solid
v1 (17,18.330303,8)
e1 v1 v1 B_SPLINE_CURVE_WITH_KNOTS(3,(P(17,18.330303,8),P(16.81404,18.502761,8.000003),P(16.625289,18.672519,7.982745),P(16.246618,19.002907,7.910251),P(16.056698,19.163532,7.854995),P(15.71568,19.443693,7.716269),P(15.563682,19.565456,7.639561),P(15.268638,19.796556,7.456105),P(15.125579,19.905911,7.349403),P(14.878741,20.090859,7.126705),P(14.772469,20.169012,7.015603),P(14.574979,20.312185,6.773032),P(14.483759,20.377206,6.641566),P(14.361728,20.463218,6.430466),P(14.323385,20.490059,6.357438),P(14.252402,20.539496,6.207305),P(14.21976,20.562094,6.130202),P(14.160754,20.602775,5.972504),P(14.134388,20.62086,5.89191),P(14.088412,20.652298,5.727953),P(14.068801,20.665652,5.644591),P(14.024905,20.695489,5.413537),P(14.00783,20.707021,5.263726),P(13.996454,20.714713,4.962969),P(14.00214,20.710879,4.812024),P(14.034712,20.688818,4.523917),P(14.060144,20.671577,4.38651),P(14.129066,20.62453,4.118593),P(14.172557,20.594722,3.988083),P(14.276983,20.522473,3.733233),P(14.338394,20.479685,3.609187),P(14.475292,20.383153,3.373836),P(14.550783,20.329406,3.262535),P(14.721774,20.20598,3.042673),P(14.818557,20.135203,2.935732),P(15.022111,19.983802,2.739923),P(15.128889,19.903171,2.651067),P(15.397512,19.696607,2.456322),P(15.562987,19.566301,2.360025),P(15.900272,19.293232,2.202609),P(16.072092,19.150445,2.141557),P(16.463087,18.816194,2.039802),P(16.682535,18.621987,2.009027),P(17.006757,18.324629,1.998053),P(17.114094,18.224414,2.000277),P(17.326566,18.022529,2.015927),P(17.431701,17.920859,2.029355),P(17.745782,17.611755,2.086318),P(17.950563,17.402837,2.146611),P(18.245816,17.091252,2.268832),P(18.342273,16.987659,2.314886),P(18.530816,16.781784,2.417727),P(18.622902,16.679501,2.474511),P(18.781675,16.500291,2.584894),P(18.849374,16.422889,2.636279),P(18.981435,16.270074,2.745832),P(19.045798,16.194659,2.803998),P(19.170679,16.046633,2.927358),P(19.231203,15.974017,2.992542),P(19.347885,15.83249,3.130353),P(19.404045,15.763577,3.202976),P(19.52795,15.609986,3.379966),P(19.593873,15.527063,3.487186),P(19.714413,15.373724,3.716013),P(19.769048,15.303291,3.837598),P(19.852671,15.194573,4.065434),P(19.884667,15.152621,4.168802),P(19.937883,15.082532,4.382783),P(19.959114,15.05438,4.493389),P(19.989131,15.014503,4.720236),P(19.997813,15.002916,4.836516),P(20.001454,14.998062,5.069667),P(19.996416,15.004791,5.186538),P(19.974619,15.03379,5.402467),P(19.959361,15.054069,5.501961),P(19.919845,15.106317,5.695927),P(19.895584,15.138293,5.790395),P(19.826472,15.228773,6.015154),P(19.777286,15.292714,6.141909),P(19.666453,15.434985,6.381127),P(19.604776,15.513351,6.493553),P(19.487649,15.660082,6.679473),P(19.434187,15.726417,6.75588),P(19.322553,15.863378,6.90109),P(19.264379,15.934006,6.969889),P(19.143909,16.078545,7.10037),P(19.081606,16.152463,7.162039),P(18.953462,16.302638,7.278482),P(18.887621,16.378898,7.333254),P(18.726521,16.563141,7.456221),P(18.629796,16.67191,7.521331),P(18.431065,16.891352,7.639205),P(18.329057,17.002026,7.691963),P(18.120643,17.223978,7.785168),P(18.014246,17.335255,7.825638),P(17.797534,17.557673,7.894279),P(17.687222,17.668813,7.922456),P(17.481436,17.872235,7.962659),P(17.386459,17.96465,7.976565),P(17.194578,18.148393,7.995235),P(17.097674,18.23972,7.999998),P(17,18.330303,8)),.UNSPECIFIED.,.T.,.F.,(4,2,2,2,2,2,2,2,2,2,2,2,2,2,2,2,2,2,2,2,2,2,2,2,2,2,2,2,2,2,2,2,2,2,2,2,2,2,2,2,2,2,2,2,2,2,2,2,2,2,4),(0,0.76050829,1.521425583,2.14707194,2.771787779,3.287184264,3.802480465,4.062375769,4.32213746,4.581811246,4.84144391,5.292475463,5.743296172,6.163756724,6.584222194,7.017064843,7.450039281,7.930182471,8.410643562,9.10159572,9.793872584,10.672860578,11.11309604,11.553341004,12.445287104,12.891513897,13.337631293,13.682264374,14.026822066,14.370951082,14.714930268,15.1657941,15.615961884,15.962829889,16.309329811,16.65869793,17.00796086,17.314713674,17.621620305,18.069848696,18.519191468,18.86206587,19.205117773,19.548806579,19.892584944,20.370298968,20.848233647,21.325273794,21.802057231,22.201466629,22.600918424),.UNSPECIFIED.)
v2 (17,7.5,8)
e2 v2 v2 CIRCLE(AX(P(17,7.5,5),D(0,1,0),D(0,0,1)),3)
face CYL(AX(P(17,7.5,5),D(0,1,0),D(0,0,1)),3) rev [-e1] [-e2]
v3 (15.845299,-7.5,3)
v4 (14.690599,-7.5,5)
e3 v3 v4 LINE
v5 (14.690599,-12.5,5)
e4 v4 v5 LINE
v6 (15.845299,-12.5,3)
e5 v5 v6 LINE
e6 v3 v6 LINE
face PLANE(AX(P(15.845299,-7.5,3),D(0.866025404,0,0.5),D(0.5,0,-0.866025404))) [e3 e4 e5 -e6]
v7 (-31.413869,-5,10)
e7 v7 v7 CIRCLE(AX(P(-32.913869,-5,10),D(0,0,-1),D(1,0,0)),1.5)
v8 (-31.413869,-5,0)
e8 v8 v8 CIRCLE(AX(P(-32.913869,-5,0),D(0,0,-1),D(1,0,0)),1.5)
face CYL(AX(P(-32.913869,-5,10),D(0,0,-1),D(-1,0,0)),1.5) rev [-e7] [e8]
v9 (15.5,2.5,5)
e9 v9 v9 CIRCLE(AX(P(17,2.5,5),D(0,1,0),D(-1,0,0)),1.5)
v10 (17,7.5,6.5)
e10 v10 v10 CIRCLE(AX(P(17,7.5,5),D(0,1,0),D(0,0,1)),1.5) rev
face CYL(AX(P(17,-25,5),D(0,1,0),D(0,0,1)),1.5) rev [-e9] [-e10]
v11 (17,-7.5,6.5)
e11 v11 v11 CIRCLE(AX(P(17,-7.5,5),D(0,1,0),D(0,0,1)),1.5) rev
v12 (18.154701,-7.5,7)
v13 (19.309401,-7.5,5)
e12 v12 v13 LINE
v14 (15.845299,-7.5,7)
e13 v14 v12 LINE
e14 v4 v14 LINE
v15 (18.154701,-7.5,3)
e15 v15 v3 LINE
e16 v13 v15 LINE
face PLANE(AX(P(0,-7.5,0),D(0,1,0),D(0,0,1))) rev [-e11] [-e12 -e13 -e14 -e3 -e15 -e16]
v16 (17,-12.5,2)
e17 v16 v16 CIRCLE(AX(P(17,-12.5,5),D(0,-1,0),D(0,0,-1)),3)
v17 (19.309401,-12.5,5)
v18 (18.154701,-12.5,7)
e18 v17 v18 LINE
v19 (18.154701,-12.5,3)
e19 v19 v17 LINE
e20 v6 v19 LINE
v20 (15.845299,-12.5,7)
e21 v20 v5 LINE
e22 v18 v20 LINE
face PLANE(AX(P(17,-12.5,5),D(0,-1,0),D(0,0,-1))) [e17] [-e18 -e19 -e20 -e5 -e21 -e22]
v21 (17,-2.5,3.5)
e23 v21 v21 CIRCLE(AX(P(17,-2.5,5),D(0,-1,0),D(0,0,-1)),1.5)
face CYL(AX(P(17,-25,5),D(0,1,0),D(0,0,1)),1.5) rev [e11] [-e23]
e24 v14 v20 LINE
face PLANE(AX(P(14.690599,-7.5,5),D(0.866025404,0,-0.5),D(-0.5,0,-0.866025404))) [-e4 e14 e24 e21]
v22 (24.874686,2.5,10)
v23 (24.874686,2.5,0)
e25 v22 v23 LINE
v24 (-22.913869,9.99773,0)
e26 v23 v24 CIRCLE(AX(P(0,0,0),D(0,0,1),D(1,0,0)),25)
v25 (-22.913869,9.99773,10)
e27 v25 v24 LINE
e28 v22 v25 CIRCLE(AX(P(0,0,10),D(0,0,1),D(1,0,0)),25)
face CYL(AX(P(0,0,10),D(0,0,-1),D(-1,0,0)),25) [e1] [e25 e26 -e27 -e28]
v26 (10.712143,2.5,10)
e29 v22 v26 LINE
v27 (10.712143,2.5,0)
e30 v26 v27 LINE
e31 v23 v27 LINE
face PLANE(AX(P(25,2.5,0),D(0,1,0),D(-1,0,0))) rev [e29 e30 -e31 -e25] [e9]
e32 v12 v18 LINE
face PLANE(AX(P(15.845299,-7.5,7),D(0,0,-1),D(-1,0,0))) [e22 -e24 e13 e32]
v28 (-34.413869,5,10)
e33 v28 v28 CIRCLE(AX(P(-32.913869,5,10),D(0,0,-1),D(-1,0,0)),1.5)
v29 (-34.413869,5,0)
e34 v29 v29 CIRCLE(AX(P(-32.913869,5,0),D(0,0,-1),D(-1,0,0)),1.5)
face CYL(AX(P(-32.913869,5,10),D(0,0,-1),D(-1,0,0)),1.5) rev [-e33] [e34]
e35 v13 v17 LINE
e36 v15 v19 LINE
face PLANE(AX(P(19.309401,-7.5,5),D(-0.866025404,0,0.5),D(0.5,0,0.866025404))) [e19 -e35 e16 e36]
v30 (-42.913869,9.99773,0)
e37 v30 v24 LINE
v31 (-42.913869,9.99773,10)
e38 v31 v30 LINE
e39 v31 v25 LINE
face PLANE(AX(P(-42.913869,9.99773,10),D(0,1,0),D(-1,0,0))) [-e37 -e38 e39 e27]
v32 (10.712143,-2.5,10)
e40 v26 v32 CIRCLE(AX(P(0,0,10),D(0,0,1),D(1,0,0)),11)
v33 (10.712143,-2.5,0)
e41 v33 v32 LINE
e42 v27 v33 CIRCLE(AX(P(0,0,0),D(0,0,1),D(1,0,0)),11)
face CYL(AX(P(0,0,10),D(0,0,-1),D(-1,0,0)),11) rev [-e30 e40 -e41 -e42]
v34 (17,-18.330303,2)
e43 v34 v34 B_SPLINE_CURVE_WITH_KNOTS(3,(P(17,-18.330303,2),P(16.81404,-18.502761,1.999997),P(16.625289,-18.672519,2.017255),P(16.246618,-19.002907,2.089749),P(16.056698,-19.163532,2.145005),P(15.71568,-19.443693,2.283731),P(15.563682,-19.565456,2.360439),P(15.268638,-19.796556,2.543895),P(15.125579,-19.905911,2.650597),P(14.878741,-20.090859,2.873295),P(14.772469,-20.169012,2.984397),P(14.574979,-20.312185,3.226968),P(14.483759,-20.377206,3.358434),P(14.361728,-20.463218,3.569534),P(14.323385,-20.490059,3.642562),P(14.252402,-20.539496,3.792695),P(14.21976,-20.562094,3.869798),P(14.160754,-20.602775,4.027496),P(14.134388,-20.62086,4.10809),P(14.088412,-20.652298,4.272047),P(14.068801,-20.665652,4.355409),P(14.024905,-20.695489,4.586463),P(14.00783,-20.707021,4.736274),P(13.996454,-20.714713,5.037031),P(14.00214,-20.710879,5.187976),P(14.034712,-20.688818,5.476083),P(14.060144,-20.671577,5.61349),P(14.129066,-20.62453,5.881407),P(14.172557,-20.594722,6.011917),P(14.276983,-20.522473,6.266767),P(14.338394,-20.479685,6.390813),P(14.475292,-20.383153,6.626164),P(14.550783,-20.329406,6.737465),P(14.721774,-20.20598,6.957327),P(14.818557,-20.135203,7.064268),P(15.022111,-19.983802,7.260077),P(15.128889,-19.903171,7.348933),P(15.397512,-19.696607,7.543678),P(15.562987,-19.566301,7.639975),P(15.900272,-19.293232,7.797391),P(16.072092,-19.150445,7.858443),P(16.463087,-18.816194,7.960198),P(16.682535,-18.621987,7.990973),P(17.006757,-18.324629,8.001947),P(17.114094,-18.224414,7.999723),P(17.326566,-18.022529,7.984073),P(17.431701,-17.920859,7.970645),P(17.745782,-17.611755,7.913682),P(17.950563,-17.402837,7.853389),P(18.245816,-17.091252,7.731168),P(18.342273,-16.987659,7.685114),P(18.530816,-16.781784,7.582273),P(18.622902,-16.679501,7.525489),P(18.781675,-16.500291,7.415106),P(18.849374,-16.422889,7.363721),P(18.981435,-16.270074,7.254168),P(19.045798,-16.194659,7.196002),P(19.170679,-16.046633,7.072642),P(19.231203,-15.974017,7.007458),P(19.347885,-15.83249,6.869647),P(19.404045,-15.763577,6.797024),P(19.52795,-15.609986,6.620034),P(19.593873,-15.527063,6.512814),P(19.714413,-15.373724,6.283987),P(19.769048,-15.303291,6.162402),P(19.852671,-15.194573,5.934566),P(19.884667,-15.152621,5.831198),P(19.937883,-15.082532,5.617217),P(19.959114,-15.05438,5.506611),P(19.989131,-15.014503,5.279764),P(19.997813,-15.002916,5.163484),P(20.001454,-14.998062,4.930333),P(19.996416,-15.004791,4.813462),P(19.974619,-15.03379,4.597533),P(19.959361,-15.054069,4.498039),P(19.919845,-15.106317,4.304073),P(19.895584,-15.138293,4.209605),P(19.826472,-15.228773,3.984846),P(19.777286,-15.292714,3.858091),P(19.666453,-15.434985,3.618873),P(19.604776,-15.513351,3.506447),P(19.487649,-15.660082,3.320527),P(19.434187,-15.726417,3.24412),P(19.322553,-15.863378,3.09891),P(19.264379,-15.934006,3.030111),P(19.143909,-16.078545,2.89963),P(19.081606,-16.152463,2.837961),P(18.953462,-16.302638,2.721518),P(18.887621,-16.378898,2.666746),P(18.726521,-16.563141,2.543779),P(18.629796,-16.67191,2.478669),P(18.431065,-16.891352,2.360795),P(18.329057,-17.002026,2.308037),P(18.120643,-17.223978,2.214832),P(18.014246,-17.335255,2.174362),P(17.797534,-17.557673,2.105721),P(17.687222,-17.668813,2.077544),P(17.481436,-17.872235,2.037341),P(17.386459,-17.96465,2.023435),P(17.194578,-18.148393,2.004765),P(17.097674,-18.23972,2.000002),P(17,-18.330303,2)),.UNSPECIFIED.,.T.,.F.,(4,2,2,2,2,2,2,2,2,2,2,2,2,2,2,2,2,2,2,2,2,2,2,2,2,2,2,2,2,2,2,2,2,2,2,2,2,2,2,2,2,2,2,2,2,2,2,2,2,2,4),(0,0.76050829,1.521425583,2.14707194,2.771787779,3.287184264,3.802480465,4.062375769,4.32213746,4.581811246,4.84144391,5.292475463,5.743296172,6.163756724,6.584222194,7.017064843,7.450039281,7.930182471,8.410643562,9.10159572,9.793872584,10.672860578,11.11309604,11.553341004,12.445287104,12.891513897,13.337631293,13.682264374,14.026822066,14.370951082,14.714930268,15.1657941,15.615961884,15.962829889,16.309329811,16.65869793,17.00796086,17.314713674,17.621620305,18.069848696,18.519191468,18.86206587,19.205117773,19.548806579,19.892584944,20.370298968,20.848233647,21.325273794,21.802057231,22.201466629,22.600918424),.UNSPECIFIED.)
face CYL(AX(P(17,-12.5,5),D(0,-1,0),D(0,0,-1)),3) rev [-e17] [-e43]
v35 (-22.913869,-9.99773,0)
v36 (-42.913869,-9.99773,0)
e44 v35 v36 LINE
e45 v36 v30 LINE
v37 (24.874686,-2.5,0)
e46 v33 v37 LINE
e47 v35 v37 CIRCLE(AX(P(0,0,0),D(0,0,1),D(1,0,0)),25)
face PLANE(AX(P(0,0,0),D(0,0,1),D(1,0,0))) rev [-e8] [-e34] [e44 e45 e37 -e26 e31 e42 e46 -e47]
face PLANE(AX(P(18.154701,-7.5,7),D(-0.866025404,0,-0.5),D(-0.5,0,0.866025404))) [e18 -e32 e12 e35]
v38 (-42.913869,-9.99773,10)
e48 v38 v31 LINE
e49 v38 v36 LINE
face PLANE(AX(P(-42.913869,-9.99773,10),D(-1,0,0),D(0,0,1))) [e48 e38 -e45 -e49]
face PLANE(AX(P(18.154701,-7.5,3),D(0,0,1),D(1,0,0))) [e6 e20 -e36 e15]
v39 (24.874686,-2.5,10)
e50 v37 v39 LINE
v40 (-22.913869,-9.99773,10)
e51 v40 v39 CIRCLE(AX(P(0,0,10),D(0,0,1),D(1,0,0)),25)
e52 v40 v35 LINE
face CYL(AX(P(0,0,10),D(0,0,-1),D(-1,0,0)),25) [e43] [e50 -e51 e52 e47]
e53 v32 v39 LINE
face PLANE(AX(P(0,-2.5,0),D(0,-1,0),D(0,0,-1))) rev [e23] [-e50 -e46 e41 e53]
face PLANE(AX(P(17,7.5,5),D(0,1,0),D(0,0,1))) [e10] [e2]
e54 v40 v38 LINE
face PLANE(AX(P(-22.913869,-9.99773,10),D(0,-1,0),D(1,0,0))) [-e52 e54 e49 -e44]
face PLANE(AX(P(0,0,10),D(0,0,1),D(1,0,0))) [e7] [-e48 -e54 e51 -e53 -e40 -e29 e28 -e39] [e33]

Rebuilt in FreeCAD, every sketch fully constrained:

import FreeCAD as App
import Part
import Sketcher
from FreeCAD import Vector
Q = App.Units.Quantity

doc = App.newDocument("Part")
body = doc.addObject("PartDesign::Body", "Body")

# Sketch on XY plane
sketch1 = body.newObject("Sketcher::SketchObject", "Sketch")
sketch1.AttachmentSupport = (doc.getObject("XY_Plane"), [""])
sketch1.MapMode = "FlatFace"
sketch1.addGeometry(Part.Circle(Vector(0, 0, 0), Vector(0, 0, 1), 25), False)
sketch1.addGeometry(Part.Circle(Vector(0, 0, 0), Vector(0, 0, 1), 11), False)
sketch1.addConstraint(Sketcher.Constraint("Coincident", 0, 3, -1, 1))
sketch1.addConstraint(Sketcher.Constraint("Coincident", 1, 3, -1, 1))
sketch1.addConstraint(Sketcher.Constraint("Diameter", 0, 50.0))
sketch1.addConstraint(Sketcher.Constraint("Diameter", 1, 22.0))
pad1 = body.newObject("PartDesign::Pad", "Pad")
pad1.Profile = sketch1
pad1.Length = 10

# Sketch on XY plane
sketch2 = body.newObject("Sketcher::SketchObject", "Sketch001")
sketch2.AttachmentSupport = (doc.getObject("XY_Plane"), [""])
sketch2.MapMode = "FlatFace"
sketch2.AttachmentOffset = App.Placement(Vector(0, 0, 10), App.Rotation())
sketch2.addGeometry(Part.LineSegment(Vector(25, 2, 0), Vector(0, 2, 0)), False)
sketch2.addGeometry(Part.LineSegment(Vector(0, 2, 0), Vector(0, -2, 0)), False)
sketch2.addGeometry(Part.LineSegment(Vector(0, -2, 0), Vector(25, -2, 0)), False)
sketch2.addGeometry(Part.LineSegment(Vector(25, -2, 0), Vector(25, 2, 0)), False)
sketch2.addConstraint(Sketcher.Constraint("Coincident", 0, 2, 1, 1))
sketch2.addConstraint(Sketcher.Constraint("Coincident", 1, 2, 2, 1))
sketch2.addConstraint(Sketcher.Constraint("Coincident", 2, 2, 3, 1))
sketch2.addConstraint(Sketcher.Constraint("Coincident", 3, 2, 0, 1))
sketch2.addConstraint(Sketcher.Constraint("Horizontal", 0))
sketch2.addConstraint(Sketcher.Constraint("Vertical", 1))
sketch2.addConstraint(Sketcher.Constraint("Horizontal", 2))
sketch2.addConstraint(Sketcher.Constraint("Vertical", 3))
sketch2.addConstraint(Sketcher.Constraint("Symmetric", 0, 2, 1, 2, -1, 1))
sketch2.addConstraint(Sketcher.Constraint("DistanceX", 0, 2, 0, 1, 25.0))
sketch2.addConstraint(Sketcher.Constraint("DistanceY", 1, 2, 1, 1, 5.0))
pocket1 = body.newObject("PartDesign::Pocket", "Pocket")
pocket1.Profile = sketch2
pocket1.Length = 10

# Sketch on XZ plane
sketch3 = body.newObject("Sketcher::SketchObject", "Sketch002")
sketch3.AttachmentSupport = (doc.getObject("XZ_Plane"), [""])
sketch3.MapMode = "FlatFace"
sketch3.AttachmentOffset = App.Placement(Vector(0, 0, 2.5), App.Rotation())
sketch3.addGeometry(Part.Circle(Vector(17, 5, 0), Vector(0, 0, 1), 1.5), False)
sketch3.addConstraint(Sketcher.Constraint("Diameter", 0, 3.0))
sketch3.addConstraint(Sketcher.Constraint("DistanceX", -1, 1, 0, 3, 17.0))
sketch3.addConstraint(Sketcher.Constraint("DistanceY", -1, 1, 0, 3, 5.0))
pocket2 = body.newObject("PartDesign::Pocket", "Pocket001")
pocket2.Profile = sketch3
pocket2.Type = "ThroughAll"
pocket2.Midplane = True

# Sketch on XZ plane
sketch4 = body.newObject("Sketcher::SketchObject", "Sketch003")
sketch4.AttachmentSupport = (doc.getObject("XZ_Plane"), [""])
sketch4.MapMode = "FlatFace"
sketch4.AttachmentOffset = App.Placement(Vector(0, 0, -27.5), App.Rotation())
sketch4.addGeometry(Part.Circle(Vector(17, 5, 0), Vector(0, 0, 1), 3), False)
sketch4.addConstraint(Sketcher.Constraint("Diameter", 0, 6.0))
sketch4.addConstraint(Sketcher.Constraint("DistanceX", -1, 1, 0, 3, 17.0))
sketch4.addConstraint(Sketcher.Constraint("DistanceY", -1, 1, 0, 3, 5.0))
pocket3 = body.newObject("PartDesign::Pocket", "Pocket002")
pocket3.Profile = sketch4
pocket3.Length = 20
pocket3.Reversed = True

# Sketch on XZ plane
sketch5 = body.newObject("Sketcher::SketchObject", "Sketch004")
sketch5.AttachmentSupport = (doc.getObject("XZ_Plane"), [""])
sketch5.MapMode = "FlatFace"
sketch5.AttachmentOffset = App.Placement(Vector(0, 0, 32.5), App.Rotation())
sketch5.addGeometry(Part.LineSegment(Vector(19.3, 5, 0), Vector(18.2, 3, 0)), False)
sketch5.addGeometry(Part.LineSegment(Vector(18.2, 3, 0), Vector(15.8, 3, 0)), False)
sketch5.addGeometry(Part.LineSegment(Vector(15.8, 3, 0), Vector(14.7, 5, 0)), False)
sketch5.addGeometry(Part.LineSegment(Vector(14.7, 5, 0), Vector(15.8, 7, 0)), False)
sketch5.addGeometry(Part.LineSegment(Vector(15.8, 7, 0), Vector(18.2, 7, 0)), False)
sketch5.addGeometry(Part.LineSegment(Vector(18.2, 7, 0), Vector(19.3, 5, 0)), False)
sketch5.addConstraint(Sketcher.Constraint("Coincident", 0, 2, 1, 1))
sketch5.addConstraint(Sketcher.Constraint("Coincident", 1, 2, 2, 1))
sketch5.addConstraint(Sketcher.Constraint("Coincident", 2, 2, 3, 1))
sketch5.addConstraint(Sketcher.Constraint("Coincident", 3, 2, 4, 1))
sketch5.addConstraint(Sketcher.Constraint("Coincident", 4, 2, 5, 1))
sketch5.addConstraint(Sketcher.Constraint("Coincident", 5, 2, 0, 1))
sketch5.addConstraint(Sketcher.Constraint("Horizontal", 1))
sketch5.addConstraint(Sketcher.Constraint("Horizontal", 4))
sketch5.addConstraint(Sketcher.Constraint("Parallel", 0, 3))
sketch5.addConstraint(Sketcher.Constraint("Parallel", 2, 5))
sketch5.addConstraint(Sketcher.Constraint("Horizontal", 2, 2, 5, 2))
sketch5.addConstraint(Sketcher.Constraint("Vertical", 1, 2, 3, 2))
sketch5.addConstraint(Sketcher.Constraint("Vertical", 0, 2, 4, 2))
sketch5.addConstraint(Sketcher.Constraint("Angle", 0, Q("-120 deg")))
sketch5.addConstraint(Sketcher.Constraint("DistanceY", -1, 1, 0, 2, 3.0))
sketch5.addConstraint(Sketcher.Constraint("DistanceY", -1, 1, 2, 2, 5.0))
sketch5.addConstraint(Sketcher.Constraint("DistanceX", 1, 2, 1, 1, 2.309401))
sketch5.addConstraint(Sketcher.Constraint("DistanceX", -1, 1, 0, 2, 18.154701))
pocket4 = body.newObject("PartDesign::Pocket", "Pocket003")
pocket4.Profile = sketch5
pocket4.Length = 25

# Sketch on XZ plane
sketch6 = body.newObject("Sketcher::SketchObject", "Sketch005")
sketch6.AttachmentSupport = (doc.getObject("XZ_Plane"), [""])
sketch6.MapMode = "FlatFace"
sketch6.AttachmentOffset = App.Placement(Vector(0, 0, 27.5), App.Rotation())
sketch6.addGeometry(Part.Circle(Vector(17, 5, 0), Vector(0, 0, 1), 3), False)
sketch6.addConstraint(Sketcher.Constraint("Diameter", 0, 6.0))
sketch6.addConstraint(Sketcher.Constraint("DistanceX", -1, 1, 0, 3, 17.0))
sketch6.addConstraint(Sketcher.Constraint("DistanceY", -1, 1, 0, 3, 5.0))
pocket5 = body.newObject("PartDesign::Pocket", "Pocket004")
pocket5.Profile = sketch6
pocket5.Length = 15

# Sketch on XY plane
sketch7 = body.newObject("Sketcher::SketchObject", "Sketch006")
sketch7.AttachmentSupport = (doc.getObject("XY_Plane"), [""])
sketch7.MapMode = "FlatFace"
sketch7.addGeometry(Part.LineSegment(Vector(-22.9, 10, 0), Vector(-22.9, -10, 0)), False)
sketch7.addGeometry(Part.LineSegment(Vector(-22.9, -10, 0), Vector(-42.9, -10, 0)), False)
sketch7.addGeometry(Part.LineSegment(Vector(-42.9, -10, 0), Vector(-42.9, 10, 0)), False)
sketch7.addGeometry(Part.LineSegment(Vector(-42.9, 10, 0), Vector(-22.9, 10, 0)), False)
sketch7.addGeometry(Part.Circle(Vector(-32.9, -5, 0), Vector(0, 0, 1), 1.5), False)
sketch7.addGeometry(Part.Circle(Vector(-32.9, 5, 0), Vector(0, 0, 1), 1.5), False)
sketch7.addConstraint(Sketcher.Constraint("Coincident", 0, 2, 1, 1))
sketch7.addConstraint(Sketcher.Constraint("Coincident", 1, 2, 2, 1))
sketch7.addConstraint(Sketcher.Constraint("Coincident", 2, 2, 3, 1))
sketch7.addConstraint(Sketcher.Constraint("Coincident", 3, 2, 0, 1))
sketch7.addConstraint(Sketcher.Constraint("Vertical", 0))
sketch7.addConstraint(Sketcher.Constraint("Horizontal", 1))
sketch7.addConstraint(Sketcher.Constraint("Vertical", 2))
sketch7.addConstraint(Sketcher.Constraint("Horizontal", 3))
sketch7.addConstraint(Sketcher.Constraint("Equal", 4, 5))
sketch7.addConstraint(Sketcher.Constraint("Symmetric", 4, 3, 5, 3, -1))
sketch7.addConstraint(Sketcher.Constraint("Diameter", 4, 3.0))
sketch7.addConstraint(Sketcher.Constraint("DistanceX", 1, 2, 1, 1, 20.0))
sketch7.addConstraint(Sketcher.Constraint("DistanceY", 4, 3, -1, 1, 5.0))
sketch7.addConstraint(Sketcher.Constraint("DistanceX", 4, 3, 0, 2, 10.0))
sketch7.addConstraint(Sketcher.Constraint("DistanceY", 0, 2, 0, 1, 19.995459))
sketch7.addConstraint(Sketcher.Constraint("DistanceX", 4, 3, -1, 1, 32.913869))
sketch7.addConstraint(Sketcher.Constraint("DistanceY", 0, 2, -1, 1, 9.99773))
pad2 = body.newObject("PartDesign::Pad", "Pad001")
pad2.Profile = sketch7
pad2.Length = 10

doc.recompute()
